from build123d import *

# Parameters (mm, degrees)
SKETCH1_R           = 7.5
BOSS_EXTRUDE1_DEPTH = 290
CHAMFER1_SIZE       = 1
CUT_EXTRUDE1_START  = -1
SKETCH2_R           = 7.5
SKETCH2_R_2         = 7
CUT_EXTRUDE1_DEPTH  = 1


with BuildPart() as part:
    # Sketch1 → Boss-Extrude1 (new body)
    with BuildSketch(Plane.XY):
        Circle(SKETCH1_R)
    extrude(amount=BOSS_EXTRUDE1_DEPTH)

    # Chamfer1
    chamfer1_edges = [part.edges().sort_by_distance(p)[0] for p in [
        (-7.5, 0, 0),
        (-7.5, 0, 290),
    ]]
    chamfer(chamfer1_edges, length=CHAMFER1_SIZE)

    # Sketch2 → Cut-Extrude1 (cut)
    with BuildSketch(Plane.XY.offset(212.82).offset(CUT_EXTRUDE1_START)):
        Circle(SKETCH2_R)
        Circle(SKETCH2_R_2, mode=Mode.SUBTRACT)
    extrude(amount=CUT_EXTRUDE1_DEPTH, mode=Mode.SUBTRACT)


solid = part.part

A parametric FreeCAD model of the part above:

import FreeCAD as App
import Part
import Sketcher
from FreeCAD import Vector
Q = App.Units.Quantity


def edges_at(feature, points):
    """Names of the edges that pass closest to the given points."""
    edges = feature.Shape.Edges
    near = lambda p: min(range(len(edges)), key=lambda i: edges[i].distToShape(Part.Vertex(*p))[0])
    return sorted({f"Edge{near(p) + 1}" for p in points})

doc = App.newDocument("Part")
body = doc.addObject("PartDesign::Body", "Body")

sketch1 = body.newObject("Sketcher::SketchObject", "Sketch")
sketch1.AttachmentSupport = (doc.getObject("XY_Plane"), [""])
sketch1.MapMode = "FlatFace"
sketch1.addGeometry(Part.Circle(Vector(0, 0, 0), Vector(0, 0, 1), 7.5), False)
sketch1.addConstraint(Sketcher.Constraint("Coincident", 0, 3, -1, 1))
sketch1.addConstraint(Sketcher.Constraint("Diameter", 0, Q("15 mm")))
pad1 = body.newObject("PartDesign::Pad", "Pad")
pad1.Profile = sketch1
pad1.Length = 290
doc.recompute()

chamfer = body.newObject("PartDesign::Chamfer", "Chamfer")
chamfer.Base = (pad1, edges_at(pad1, [(-7.5, 0, 0), (-7.5, 0, 290)]))
chamfer.Size = 1

sketch2 = body.newObject("Sketcher::SketchObject", "Sketch001")
sketch2.AttachmentSupport = (doc.getObject("XY_Plane"), [""])
sketch2.MapMode = "FlatFace"
sketch2.AttachmentOffset = App.Placement(Vector(0, 0, 211.82), App.Rotation())
sketch2.addGeometry(Part.Circle(Vector(0, 0, 0), Vector(0, 0, 1), 7.5), False)
sketch2.addGeometry(Part.Circle(Vector(0, 0, 0), Vector(0, 0, 1), 7), False)
sketch2.addConstraint(Sketcher.Constraint("Coincident", 0, 3, -1, 1))
sketch2.addConstraint(Sketcher.Constraint("Coincident", 1, 3, -1, 1))
sketch2.addConstraint(Sketcher.Constraint("Diameter", 0, Q("15 mm")))
sketch2.addConstraint(Sketcher.Constraint("Diameter", 1, Q("14 mm")))
pocket1 = body.newObject("PartDesign::Pocket", "Pocket")
pocket1.Profile = sketch2
pocket1.Length = 1
pocket1.Reversed = True

doc.recompute()
